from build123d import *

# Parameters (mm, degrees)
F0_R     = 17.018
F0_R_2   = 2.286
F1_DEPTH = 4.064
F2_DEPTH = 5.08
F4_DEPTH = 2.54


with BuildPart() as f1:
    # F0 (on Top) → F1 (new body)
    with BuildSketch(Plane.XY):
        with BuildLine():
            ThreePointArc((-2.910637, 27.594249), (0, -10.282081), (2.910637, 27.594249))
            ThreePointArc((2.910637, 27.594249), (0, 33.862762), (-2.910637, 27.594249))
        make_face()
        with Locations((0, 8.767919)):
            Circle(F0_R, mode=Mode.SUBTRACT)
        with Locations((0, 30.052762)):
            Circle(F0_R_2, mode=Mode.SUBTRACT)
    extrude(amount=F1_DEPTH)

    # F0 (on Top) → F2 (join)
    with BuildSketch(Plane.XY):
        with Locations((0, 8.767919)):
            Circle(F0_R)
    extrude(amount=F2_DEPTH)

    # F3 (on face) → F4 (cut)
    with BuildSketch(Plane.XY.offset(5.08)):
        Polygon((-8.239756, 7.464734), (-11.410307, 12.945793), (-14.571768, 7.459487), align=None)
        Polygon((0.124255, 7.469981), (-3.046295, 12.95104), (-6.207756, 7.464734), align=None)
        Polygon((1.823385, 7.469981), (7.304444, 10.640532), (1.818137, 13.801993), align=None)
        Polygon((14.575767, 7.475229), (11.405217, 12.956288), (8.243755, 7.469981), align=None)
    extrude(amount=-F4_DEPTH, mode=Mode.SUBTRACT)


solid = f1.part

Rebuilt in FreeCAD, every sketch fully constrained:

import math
import FreeCAD as App
import Part
import Sketcher

V = App.Vector
Q = App.Units.Quantity


def add_polygon(sketch, points):
    """Adds a closed chain of lines whose ends are joined by coincident constraints."""
    first, n = sketch.GeometryCount, len(points)
    for a, b in zip(points, points[1:] + points[:1]):
        sketch.addGeometry(Part.LineSegment(App.Vector(*a, 0), App.Vector(*b, 0)), False)
    for i in range(n):
        sketch.addConstraint(Sketcher.Constraint("Coincident", first + i, 2, first + (i + 1) % n, 1))

doc = App.newDocument("Part")
params = doc.addObject("Spreadsheet::Sheet", "Params")
for row, (alias, value) in enumerate([
    ("sketch1_diameter", "1.34 in"),
    ("sketch1_diameter2", "0.18 in"),
    ("sketch1_radius", "0.75 in"),
    ("sketch1_radius2", "0.15 in"),
    ("pad1_length", "0.16 in"),
    ("sketch2_diameter", "1.34 in"),
    ("pad2_length", "0.2 in"),
    ("pocket1_length", "0.1 in"),
], start=1):
    params.set(f"A{row}", alias)
    params.set(f"B{row}", "=" + value)
    params.setAlias(f"B{row}", alias)

body = doc.addObject("PartDesign::Body", "Body")

sketch1 = body.newObject("Sketcher::SketchObject", "Sketch")
sketch1.AttachmentSupport = (doc.getObject("XY_Plane"), [""])
sketch1.MapMode = "FlatFace"
sketch1.addGeometry([
    Part.ArcOfCircle(Part.Circle(V(0, 8.8, 0), V(0, 0, 1), 19.1), math.radians(99), math.radians(441)),
    Part.ArcOfCircle(Part.Circle(V(0, 30.1, 0), V(0, 0, 1), 3.8), math.radians(-40), math.radians(220)),
    Part.Circle(V(0, 8.8, 0), V(0, 0, 1), 17),
    Part.Circle(V(0, 30.1, 0), V(0, 0, 1), 2.3),
], False)
sketch1.addConstraint([
    Sketcher.Constraint("Coincident", 0, 1, 1, 2),
    Sketcher.Constraint("Coincident", 1, 1, 0, 2),
    Sketcher.Constraint("Coincident", 2, 3, 0, 3),
    Sketcher.Constraint("Coincident", 3, 3, 1, 3),
    Sketcher.Constraint("Symmetric", 0, 1, 1, 1, -2),
    Sketcher.Constraint("Diameter", 2, Q("1.34 in")),
    Sketcher.Constraint("Diameter", 3, Q("0.18 in")),
    Sketcher.Constraint("Radius", 0, Q("0.75 in")),
    Sketcher.Constraint("Radius", 1, Q("0.15 in")),
    Sketcher.Constraint("DistanceY", -1, 1, 0, 3, Q("8.767919 mm")),
    Sketcher.Constraint("DistanceY", -1, 1, 0, 1, Q("27.594249 mm")),
])
sketch1.setExpression("Constraints[5]", "Params.sketch1_diameter")
sketch1.setExpression("Constraints[6]", "Params.sketch1_diameter2")
sketch1.setExpression("Constraints[7]", "Params.sketch1_radius")
sketch1.setExpression("Constraints[8]", "Params.sketch1_radius2")
pad1 = body.newObject("PartDesign::Pad", "Pad")
pad1.Profile = sketch1
pad1.setExpression("Length", "Params.pad1_length")

sketch2 = body.newObject("Sketcher::SketchObject", "Sketch001")
sketch2.AttachmentSupport = (doc.getObject("XY_Plane"), [""])
sketch2.MapMode = "FlatFace"
sketch2.addGeometry(Part.Circle(V(0, 9, 0), V(0, 0, 1), 17), False)
sketch2.addConstraint([
    Sketcher.Constraint("PointOnObject", 0, 3, -2),
    Sketcher.Constraint("Diameter", 0, Q("1.34 in")),
    Sketcher.Constraint("DistanceY", -1, 1, 0, 3, Q("8.767919 mm")),
])
sketch2.setExpression("Constraints[1]", "Params.sketch2_diameter")
pad2 = body.newObject("PartDesign::Pad", "Pad001")
pad2.Profile = sketch2
pad2.setExpression("Length", "Params.pad2_length")

sketch3 = body.newObject("Sketcher::SketchObject", "Sketch002")
sketch3.AttachmentSupport = (doc.getObject("XY_Plane"), [""])
sketch3.MapMode = "FlatFace"
sketch3.AttachmentOffset = App.Placement(V(0, 0, 0.2 * 25.4), App.Rotation())
add_polygon(sketch3, [(-8, 7), (-11, 13), (-15, 7)])
add_polygon(sketch3, [(0, 7), (-3, 13), (-6, 7)])
add_polygon(sketch3, [(2, 7), (7, 11), (2, 14)])
add_polygon(sketch3, [(15, 7), (11, 13), (8, 7)])
sketch3.addConstraint([
    Sketcher.Constraint("Parallel", 0, 3),
    Sketcher.Constraint("Parallel", 1, 4),
    Sketcher.Constraint("Parallel", 2, 5),
    Sketcher.Constraint("Perpendicular", 3, 6),
    Sketcher.Constraint("Perpendicular", 4, 7),
    Sketcher.Constraint("Perpendicular", 5, 8),
    Sketcher.Constraint("Perpendicular", 6, 9),
    Sketcher.Constraint("Perpendicular", 7, 10),
    Sketcher.Constraint("Perpendicular", 8, 11),
    Sketcher.Constraint("Horizontal", 2, 2, 4, 2),
    Sketcher.Constraint("Horizontal", 5, 2, 8, 2),
    Sketcher.Constraint("Horizontal", 8, 2, 10, 2),
    Sketcher.Constraint("Equal", 0, 1),
    Sketcher.Constraint("Equal", 1, 2),
    Sketcher.Constraint("Equal", 2, 3),
    Sketcher.Constraint("Equal", 5, 6),
    Sketcher.Constraint("Equal", 8, 9),
    Sketcher.Constraint("DistanceX", 2, 2, 4, 2, Q("0.08 in")),
    Sketcher.Constraint("DistanceX", 2, 2, -1, 1, Q("0.3243998 in")),
    Sketcher.Constraint("DistanceX", 4, 2, 6, 2, Q("13.5122 mm")),
    Sketcher.Constraint("DistanceY", 4, 2, 6, 2, Q("3.175798 mm")),
    Sketcher.Constraint("DistanceX", 5, 2, 10, 2, Q("8.1195 mm")),
    Sketcher.Constraint("DistanceY", -1, 1, 3, 2, Q("12.95104 mm")),
    Sketcher.Constraint("DistanceY", -1, 1, 5, 2, Q("7.469981 mm")),
])
pocket1 = body.newObject("PartDesign::Pocket", "Pocket")
pocket1.Profile = sketch3
pocket1.setExpression("Length", "Params.pocket1_length")

doc.recompute()
